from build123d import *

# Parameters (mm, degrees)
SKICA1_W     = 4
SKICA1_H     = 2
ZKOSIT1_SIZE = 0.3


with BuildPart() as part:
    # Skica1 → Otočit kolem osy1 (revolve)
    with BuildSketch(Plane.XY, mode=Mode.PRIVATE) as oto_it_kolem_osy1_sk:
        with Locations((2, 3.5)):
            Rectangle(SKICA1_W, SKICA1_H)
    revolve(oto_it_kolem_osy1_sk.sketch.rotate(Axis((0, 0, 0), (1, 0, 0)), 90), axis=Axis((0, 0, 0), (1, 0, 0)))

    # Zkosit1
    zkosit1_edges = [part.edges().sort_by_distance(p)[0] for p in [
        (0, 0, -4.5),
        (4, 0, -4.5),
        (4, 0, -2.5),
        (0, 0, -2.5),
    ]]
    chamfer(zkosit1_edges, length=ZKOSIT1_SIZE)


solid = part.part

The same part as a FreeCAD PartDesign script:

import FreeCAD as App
import Part
import Sketcher
from FreeCAD import Vector
Q = App.Units.Quantity


def edges_at(feature, points):
    """Names of the edges that pass closest to the given points."""
    edges = feature.Shape.Edges
    near = lambda p: min(range(len(edges)), key=lambda i: edges[i].distToShape(Part.Vertex(*p))[0])
    return sorted({f"Edge{near(p) + 1}" for p in points})

doc = App.newDocument("Part")
body = doc.addObject("PartDesign::Body", "Body")

sketch1 = doc.addObject("Sketcher::SketchObject", "Sketch")
body.addObject(sketch1)
sketch1.AttachmentSupport = (doc.XY_Plane, [""])
sketch1.MapMode = "FlatFace"
sketch1.addGeometry([
    Part.LineSegment(Vector(0, 4.5, 0), Vector(0, 2.5, 0)),
    Part.LineSegment(Vector(0, 2.5, 0), Vector(4, 2.5, 0)),
    Part.LineSegment(Vector(4, 2.5, 0), Vector(4, 4.5, 0)),
    Part.LineSegment(Vector(4, 4.5, 0), Vector(0, 4.5, 0)),
], False)
sketch1.addConstraint([
    Sketcher.Constraint("Coincident", 0, 2, 1, 1),
    Sketcher.Constraint("Coincident", 1, 2, 2, 1),
    Sketcher.Constraint("Coincident", 2, 2, 3, 1),
    Sketcher.Constraint("Coincident", 3, 2, 0, 1),
    Sketcher.Constraint("Vertical", 0),
    Sketcher.Constraint("Horizontal", 1),
    Sketcher.Constraint("Vertical", 2),
    Sketcher.Constraint("Horizontal", 3),
    Sketcher.Constraint("PointOnObject", 0, 2, -2),
    Sketcher.Constraint("DistanceX", 1, 1, 1, 2, Q("4 mm")),
    Sketcher.Constraint("DistanceY", 0, 2, 0, 1, Q("2 mm")),
    Sketcher.Constraint("DistanceY", -1, 1, 0, 2, Q("2.5 mm")),
])
revolution = doc.addObject("PartDesign::Revolution", "Revolution")
body.addObject(revolution)
revolution.Profile = sketch1
revolution.ReferenceAxis = (sketch1, ["H_Axis"])
revolution.Angle = 360
doc.recompute()

chamfer = doc.addObject("PartDesign::Chamfer", "Chamfer")
body.addObject(chamfer)
chamfer.Base = (revolution, edges_at(revolution, [
    (0, 0, -4.5),
    (4, 0, -4.5),
    (4, 0, -2.5),
    (0, 0, -2.5),
]))
chamfer.Size = 0.3

doc.recompute()
